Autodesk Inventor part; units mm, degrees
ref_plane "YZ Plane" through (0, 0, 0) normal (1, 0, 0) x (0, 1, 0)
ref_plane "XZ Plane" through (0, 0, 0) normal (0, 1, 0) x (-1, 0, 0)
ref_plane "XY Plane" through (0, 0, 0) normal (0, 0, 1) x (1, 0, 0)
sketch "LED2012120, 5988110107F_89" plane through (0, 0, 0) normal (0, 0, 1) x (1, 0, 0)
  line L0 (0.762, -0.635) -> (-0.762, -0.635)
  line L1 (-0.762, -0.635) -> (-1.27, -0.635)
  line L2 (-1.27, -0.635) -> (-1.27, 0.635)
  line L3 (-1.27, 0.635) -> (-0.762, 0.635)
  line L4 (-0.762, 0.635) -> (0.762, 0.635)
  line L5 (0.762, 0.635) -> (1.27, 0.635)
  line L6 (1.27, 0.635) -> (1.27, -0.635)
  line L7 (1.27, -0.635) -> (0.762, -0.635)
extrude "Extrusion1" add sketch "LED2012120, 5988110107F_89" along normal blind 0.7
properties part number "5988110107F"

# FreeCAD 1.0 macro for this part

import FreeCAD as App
import Part
import Sketcher

V = App.Vector
Q = App.Units.Quantity


def add_polygon(sketch, points):
    """Adds a closed chain of lines whose ends are joined by coincident constraints."""
    first, n = sketch.GeometryCount, len(points)
    for a, b in zip(points, points[1:] + points[:1]):
        sketch.addGeometry(Part.LineSegment(App.Vector(*a, 0), App.Vector(*b, 0)), False)
    for i in range(n):
        sketch.addConstraint(Sketcher.Constraint("Coincident", first + i, 2, first + (i + 1) % n, 1))

doc = App.newDocument("Part")
body = doc.addObject("PartDesign::Body", "Body")

sketch1 = doc.addObject("Sketcher::SketchObject", "Sketch")
body.addObject(sketch1)
sketch1.AttachmentSupport = (doc.XY_Plane, [""])
sketch1.MapMode = "FlatFace"
add_polygon(sketch1, [(-1.3, -0.6), (1.3, -0.6), (1.3, 0.6), (-1.3, 0.6)])
sketch1.addConstraint(Sketcher.Constraint("Horizontal", 0))
sketch1.addConstraint(Sketcher.Constraint("Vertical", 1))
sketch1.addConstraint(Sketcher.Constraint("Horizontal", 2))
sketch1.addConstraint(Sketcher.Constraint("Vertical", 3))
sketch1.addConstraint(Sketcher.Constraint("Symmetric", 0, 2, 2, 2, -1, 1))
sketch1.addConstraint(Sketcher.Constraint("DistanceX", 0, 1, 0, 2, Q("0.1 in")))
sketch1.addConstraint(Sketcher.Constraint("DistanceY", 1, 1, 1, 2, Q("0.05 in")))
pad1 = doc.addObject("PartDesign::Pad", "Pad")
body.addObject(pad1)
pad1.Profile = sketch1
pad1.Length = 0.7

doc.recompute()
